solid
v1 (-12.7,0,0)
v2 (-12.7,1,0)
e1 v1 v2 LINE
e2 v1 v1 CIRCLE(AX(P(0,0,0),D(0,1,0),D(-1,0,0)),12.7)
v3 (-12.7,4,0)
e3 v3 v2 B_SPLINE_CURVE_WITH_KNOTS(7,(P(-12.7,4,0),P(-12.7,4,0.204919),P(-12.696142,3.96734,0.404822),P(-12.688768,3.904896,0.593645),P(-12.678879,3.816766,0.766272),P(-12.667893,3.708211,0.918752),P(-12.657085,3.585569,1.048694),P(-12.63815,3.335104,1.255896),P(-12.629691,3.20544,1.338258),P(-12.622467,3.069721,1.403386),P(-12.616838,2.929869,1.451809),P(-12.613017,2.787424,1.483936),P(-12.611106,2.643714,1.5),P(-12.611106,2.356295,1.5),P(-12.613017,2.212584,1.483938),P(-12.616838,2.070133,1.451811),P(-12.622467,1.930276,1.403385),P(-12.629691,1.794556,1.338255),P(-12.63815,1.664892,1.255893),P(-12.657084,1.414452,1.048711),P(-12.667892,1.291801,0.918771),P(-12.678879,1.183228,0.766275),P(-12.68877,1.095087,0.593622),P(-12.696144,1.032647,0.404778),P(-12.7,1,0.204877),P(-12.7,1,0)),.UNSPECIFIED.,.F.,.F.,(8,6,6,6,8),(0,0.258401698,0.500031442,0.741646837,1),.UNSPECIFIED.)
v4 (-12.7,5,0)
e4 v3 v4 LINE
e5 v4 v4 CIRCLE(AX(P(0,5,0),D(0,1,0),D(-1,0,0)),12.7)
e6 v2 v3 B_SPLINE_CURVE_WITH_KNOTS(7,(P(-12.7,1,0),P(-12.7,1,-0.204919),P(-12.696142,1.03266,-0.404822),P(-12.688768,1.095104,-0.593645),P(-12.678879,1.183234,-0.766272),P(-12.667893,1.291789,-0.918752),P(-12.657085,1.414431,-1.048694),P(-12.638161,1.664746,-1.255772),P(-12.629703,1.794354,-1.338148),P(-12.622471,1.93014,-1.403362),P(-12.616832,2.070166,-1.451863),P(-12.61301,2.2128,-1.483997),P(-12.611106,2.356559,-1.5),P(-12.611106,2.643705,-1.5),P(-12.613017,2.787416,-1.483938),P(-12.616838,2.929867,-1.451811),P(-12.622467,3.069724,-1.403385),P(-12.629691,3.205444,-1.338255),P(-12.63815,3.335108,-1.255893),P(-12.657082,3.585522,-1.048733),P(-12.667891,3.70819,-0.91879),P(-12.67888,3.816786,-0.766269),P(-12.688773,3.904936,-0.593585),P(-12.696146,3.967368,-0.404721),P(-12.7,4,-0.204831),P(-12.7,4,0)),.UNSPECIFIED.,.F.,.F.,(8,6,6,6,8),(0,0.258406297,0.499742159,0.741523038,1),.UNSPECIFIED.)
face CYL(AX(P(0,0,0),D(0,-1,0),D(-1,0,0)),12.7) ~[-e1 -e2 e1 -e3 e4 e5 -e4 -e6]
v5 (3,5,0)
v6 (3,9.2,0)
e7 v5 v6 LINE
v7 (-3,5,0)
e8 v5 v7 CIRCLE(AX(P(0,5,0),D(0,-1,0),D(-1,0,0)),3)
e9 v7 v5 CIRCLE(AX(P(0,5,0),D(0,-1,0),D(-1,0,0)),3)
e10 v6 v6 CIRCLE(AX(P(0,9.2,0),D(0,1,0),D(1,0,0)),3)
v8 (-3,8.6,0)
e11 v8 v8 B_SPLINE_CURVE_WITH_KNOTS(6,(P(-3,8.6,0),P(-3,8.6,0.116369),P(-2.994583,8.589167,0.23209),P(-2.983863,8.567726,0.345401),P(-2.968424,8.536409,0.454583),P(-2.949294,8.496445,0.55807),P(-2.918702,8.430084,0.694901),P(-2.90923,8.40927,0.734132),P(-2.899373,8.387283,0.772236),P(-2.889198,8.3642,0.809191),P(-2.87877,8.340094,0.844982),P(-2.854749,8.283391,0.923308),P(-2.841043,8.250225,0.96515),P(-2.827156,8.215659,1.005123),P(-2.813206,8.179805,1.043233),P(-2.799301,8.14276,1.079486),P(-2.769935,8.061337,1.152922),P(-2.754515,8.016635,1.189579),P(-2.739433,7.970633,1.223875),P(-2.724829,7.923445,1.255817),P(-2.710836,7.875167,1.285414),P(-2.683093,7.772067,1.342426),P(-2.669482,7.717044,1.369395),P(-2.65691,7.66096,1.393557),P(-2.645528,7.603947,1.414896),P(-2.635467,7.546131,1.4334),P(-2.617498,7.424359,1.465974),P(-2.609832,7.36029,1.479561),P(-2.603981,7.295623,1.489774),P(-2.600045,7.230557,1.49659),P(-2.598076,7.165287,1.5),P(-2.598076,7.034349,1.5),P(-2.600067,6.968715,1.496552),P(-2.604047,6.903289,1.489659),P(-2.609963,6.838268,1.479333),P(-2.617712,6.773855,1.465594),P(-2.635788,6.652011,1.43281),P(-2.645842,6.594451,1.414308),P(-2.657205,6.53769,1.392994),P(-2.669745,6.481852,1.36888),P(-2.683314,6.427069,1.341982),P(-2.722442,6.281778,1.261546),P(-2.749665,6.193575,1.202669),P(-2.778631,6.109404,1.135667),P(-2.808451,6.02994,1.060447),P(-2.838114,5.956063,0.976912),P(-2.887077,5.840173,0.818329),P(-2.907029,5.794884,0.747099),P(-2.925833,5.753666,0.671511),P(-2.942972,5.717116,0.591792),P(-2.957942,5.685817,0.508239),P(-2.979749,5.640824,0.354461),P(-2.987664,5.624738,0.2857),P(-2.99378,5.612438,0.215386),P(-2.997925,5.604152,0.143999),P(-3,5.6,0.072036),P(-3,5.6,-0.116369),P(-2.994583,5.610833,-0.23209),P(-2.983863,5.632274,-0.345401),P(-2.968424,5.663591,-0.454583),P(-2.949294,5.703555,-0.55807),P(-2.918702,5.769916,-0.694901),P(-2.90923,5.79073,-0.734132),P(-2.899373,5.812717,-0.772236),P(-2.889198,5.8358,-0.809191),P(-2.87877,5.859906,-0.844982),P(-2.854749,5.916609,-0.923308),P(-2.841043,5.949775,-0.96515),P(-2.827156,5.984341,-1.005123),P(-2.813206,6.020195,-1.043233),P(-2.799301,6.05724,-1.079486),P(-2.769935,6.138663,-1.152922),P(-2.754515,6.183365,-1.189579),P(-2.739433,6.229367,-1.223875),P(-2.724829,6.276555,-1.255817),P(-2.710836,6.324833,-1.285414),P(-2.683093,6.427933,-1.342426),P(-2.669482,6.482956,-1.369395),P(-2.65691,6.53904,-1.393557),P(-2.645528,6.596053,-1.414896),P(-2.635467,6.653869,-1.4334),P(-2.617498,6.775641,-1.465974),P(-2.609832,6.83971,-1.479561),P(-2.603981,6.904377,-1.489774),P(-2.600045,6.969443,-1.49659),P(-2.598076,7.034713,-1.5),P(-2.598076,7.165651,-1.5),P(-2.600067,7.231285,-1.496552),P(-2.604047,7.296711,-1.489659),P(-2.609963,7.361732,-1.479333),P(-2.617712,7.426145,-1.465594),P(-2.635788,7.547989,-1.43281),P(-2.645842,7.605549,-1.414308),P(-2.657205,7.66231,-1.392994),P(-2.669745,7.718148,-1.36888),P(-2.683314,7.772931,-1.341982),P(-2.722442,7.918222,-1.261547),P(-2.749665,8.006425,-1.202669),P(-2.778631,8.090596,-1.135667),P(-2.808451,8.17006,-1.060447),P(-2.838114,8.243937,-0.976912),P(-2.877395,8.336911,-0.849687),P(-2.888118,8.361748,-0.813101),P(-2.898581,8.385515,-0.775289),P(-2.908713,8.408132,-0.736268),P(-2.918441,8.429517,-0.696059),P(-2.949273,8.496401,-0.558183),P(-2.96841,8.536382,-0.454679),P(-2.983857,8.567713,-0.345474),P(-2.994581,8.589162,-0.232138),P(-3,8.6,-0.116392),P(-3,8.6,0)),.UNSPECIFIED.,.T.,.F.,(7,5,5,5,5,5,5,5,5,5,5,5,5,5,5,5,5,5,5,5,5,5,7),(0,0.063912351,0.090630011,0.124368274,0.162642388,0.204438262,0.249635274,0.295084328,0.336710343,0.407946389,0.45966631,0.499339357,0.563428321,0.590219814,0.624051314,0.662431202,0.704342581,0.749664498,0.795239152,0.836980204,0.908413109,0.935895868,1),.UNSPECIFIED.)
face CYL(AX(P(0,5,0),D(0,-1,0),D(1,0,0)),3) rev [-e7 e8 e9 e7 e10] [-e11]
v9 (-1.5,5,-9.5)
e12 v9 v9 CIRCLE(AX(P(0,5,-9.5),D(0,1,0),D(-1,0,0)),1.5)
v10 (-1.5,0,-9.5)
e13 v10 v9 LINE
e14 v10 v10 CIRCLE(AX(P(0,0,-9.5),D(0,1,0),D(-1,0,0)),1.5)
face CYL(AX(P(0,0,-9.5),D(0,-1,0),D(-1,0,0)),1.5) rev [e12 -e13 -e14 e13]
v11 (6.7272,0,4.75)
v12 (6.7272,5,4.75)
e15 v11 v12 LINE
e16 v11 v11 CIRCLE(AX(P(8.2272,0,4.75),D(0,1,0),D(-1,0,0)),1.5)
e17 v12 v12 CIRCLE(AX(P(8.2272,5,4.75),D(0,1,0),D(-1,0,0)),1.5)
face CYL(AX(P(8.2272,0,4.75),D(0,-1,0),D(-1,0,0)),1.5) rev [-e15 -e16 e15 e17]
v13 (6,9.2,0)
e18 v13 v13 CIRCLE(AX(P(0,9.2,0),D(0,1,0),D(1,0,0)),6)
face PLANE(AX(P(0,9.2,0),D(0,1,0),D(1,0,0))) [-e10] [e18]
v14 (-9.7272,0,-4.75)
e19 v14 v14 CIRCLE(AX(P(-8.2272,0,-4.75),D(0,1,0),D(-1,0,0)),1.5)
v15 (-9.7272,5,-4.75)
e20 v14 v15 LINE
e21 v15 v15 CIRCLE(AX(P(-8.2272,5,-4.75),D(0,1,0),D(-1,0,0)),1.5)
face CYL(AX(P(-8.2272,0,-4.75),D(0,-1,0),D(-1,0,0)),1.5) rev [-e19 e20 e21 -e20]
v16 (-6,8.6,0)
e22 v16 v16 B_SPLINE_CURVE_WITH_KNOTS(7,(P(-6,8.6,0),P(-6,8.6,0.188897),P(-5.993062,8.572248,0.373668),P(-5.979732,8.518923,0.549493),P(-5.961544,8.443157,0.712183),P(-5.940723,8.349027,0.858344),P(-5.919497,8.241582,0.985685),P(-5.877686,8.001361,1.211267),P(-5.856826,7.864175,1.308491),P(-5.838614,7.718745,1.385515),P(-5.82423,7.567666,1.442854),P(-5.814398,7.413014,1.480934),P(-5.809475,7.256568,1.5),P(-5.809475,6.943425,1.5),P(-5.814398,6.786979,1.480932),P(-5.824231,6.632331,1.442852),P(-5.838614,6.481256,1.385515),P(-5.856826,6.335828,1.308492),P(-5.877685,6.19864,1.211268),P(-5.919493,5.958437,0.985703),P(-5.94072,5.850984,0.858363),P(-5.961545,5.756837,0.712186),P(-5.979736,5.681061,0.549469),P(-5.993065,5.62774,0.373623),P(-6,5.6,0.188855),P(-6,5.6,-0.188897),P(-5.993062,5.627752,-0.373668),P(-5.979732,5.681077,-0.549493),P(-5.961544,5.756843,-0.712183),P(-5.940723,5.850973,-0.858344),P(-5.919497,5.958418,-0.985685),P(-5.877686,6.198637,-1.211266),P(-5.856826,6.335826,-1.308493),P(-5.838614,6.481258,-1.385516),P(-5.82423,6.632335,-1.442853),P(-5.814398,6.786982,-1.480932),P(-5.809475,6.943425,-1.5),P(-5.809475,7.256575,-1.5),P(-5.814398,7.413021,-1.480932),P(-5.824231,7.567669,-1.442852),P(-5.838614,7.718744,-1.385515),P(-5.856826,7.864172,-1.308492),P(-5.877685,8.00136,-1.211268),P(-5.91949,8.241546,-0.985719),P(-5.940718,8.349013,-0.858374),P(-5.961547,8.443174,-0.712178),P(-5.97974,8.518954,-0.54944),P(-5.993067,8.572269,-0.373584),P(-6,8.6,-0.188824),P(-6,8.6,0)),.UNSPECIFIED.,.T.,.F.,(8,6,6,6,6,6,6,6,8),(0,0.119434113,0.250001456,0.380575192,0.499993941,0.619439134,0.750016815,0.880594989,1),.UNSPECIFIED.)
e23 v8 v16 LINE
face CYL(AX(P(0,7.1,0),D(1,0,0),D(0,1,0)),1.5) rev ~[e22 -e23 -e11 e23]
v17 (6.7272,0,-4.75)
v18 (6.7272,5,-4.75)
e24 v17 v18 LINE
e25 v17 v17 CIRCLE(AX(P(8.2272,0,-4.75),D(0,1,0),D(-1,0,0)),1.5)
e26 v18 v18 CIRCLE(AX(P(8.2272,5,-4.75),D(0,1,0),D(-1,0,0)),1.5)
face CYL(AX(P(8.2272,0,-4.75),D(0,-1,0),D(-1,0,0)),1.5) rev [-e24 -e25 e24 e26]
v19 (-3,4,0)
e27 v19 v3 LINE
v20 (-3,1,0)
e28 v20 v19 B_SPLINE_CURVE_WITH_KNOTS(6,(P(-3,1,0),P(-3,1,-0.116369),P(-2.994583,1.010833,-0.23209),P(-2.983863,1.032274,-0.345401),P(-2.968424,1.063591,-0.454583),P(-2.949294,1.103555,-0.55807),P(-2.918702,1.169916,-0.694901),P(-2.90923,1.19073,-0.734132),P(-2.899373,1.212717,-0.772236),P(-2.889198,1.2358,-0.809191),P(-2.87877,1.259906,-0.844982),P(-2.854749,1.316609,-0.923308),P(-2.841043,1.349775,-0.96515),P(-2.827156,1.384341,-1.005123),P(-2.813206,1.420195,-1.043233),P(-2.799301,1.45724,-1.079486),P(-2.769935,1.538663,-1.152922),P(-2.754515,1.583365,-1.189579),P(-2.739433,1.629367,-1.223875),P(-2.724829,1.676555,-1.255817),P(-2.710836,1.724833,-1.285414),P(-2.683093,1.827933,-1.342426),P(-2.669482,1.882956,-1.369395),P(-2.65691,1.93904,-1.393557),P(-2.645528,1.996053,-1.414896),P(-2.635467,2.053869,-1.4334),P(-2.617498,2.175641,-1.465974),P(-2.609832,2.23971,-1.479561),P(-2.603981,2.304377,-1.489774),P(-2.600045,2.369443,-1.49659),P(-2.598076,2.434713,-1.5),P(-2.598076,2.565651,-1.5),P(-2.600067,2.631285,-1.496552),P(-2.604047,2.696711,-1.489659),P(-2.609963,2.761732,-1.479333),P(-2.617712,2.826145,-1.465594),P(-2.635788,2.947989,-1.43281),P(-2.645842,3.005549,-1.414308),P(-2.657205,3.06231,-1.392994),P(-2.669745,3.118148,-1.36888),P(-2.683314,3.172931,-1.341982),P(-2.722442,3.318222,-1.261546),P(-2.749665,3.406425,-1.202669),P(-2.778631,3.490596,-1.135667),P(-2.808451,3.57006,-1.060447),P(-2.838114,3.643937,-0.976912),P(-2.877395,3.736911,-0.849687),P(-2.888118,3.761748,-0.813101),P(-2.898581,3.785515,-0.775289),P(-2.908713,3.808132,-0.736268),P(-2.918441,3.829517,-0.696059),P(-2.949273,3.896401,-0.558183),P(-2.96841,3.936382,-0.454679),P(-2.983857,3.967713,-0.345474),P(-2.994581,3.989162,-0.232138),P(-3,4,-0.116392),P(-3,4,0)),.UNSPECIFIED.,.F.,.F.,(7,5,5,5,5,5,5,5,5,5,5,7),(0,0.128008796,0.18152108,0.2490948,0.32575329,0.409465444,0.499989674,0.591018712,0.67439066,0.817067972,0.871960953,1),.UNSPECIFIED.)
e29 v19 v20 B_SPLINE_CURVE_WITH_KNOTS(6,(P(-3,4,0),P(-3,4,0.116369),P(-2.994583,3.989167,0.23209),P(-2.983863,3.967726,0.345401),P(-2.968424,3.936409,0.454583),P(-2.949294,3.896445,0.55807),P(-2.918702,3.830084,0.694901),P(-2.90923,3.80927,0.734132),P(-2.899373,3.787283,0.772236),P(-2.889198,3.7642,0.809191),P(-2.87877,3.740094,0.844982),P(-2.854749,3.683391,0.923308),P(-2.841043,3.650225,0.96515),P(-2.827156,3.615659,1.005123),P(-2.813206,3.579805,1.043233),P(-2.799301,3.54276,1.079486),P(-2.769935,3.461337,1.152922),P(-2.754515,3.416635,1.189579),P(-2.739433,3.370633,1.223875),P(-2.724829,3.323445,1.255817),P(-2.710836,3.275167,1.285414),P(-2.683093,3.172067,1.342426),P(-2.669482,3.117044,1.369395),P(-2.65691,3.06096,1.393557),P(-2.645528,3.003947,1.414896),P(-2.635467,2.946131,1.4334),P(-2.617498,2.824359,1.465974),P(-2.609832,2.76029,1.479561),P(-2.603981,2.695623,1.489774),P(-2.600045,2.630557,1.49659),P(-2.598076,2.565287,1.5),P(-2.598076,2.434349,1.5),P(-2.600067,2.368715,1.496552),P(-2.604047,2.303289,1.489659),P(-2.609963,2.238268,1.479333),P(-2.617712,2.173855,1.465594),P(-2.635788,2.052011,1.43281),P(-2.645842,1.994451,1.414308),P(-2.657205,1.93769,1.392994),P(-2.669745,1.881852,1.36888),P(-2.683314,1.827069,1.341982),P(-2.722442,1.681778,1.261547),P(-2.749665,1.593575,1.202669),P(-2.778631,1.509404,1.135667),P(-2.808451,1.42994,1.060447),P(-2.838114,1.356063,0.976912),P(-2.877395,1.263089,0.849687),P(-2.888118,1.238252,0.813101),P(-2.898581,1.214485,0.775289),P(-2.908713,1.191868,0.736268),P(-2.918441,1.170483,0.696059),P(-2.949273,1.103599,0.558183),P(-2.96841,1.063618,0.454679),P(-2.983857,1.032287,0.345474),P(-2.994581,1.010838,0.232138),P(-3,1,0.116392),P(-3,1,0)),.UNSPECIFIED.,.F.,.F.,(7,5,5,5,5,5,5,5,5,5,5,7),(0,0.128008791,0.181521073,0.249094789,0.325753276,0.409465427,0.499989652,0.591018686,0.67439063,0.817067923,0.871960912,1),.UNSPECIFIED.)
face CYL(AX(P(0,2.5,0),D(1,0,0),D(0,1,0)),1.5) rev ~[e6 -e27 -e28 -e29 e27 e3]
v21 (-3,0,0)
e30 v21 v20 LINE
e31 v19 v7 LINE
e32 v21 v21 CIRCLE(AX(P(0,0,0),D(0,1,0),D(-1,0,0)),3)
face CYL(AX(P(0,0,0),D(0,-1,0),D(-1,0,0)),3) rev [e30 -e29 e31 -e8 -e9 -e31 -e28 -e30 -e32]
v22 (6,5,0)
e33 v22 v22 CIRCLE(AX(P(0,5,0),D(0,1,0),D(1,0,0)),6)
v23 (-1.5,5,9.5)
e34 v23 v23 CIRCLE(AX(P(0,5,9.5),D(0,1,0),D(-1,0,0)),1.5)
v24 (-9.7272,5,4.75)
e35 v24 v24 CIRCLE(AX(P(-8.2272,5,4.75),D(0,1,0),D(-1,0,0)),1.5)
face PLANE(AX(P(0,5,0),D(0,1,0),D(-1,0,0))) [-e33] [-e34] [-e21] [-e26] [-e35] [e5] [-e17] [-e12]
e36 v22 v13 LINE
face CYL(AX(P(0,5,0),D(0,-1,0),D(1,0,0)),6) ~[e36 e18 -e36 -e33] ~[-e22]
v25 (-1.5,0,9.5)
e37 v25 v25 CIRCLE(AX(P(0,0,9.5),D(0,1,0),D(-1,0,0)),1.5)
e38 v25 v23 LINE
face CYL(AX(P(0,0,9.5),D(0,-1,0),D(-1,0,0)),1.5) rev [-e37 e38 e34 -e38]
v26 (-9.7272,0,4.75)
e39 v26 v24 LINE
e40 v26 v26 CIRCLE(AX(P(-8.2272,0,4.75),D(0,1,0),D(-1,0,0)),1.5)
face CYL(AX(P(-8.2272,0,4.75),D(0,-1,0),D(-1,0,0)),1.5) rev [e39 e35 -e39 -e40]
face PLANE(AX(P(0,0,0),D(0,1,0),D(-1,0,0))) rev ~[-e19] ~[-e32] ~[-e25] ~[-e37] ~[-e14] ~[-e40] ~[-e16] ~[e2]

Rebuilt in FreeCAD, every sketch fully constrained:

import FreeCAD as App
import Part
import Sketcher

V = App.Vector
Q = App.Units.Quantity

doc = App.newDocument("Part")
body = doc.addObject("PartDesign::Body", "Body")

# Sketch on XZ plane
sketch1 = body.newObject("Sketcher::SketchObject", "Sketch")
sketch1.AttachmentSupport = (doc.getObject("XZ_Plane"), [""])
sketch1.MapMode = "FlatFace"
sketch1.addGeometry([
    Part.Circle(V(0, 0, 0), V(0, 0, 1), 12.7),  # 0
    Part.Circle(V(0, -9.5, 0), V(0, 0, 1), 1.5),  # 1
    Part.Circle(V(8.2, -4.8, 0), V(0, 0, 1), 1.5),  # 2
    Part.Circle(V(-8.2, -4.8, 0), V(0, 0, 1), 1.5),  # 3
    Part.Circle(V(8.2, 4.8, 0), V(0, 0, 1), 1.5),  # 4
    Part.Circle(V(0, 9.5, 0), V(0, 0, 1), 1.5),  # 5
    Part.Circle(V(-8.2, 4.8, 0), V(0, 0, 1), 1.5),  # 6
], False)
sketch1.addConstraint([
    Sketcher.Constraint("Coincident", 0, 3, -1, 1),
    Sketcher.Constraint("Equal", 1, 2),
    Sketcher.Constraint("Equal", 2, 3),
    Sketcher.Constraint("Equal", 3, 4),
    Sketcher.Constraint("Equal", 4, 5),
    Sketcher.Constraint("Equal", 5, 6),
    Sketcher.Constraint("Symmetric", 3, 3, 4, 3, -1, 1),
    Sketcher.Constraint("Symmetric", 1, 3, 5, 3, -1, 1),
    Sketcher.Constraint("Symmetric", 2, 3, 6, 3, -1, 1),
    Sketcher.Constraint("Symmetric", 2, 3, 3, 3, -2),
    Sketcher.Constraint("PointOnObject", 1, 3, -2),
    Sketcher.Constraint("Diameter", 1, Q("3 mm")),
    Sketcher.Constraint("Diameter", 0, Q("25.4 mm")),
    Sketcher.Constraint("DistanceY", 1, 3, -1, 1, Q("9.5 mm")),
    Sketcher.Constraint("DistanceY", 2, 3, 4, 3, Q("9.5 mm")),
    Sketcher.Constraint("DistanceX", -1, 1, 2, 3, Q("8.2272 mm")),
])
pad1 = body.newObject("PartDesign::Pad", "Pad")
pad1.Profile = sketch1
pad1.Length = 5
pad1.Reversed = True

# Sketch on XZ plane
sketch2 = body.newObject("Sketcher::SketchObject", "Sketch001")
sketch2.AttachmentSupport = (doc.getObject("XZ_Plane"), [""])
sketch2.MapMode = "FlatFace"
sketch2.addGeometry(Part.Circle(V(0, 0, 0), V(0, 0, 1), 3), False)
sketch2.addConstraint([
    Sketcher.Constraint("Coincident", 0, 3, -1, 1),
    Sketcher.Constraint("Diameter", 0, Q("6 mm")),
])
pocket1 = body.newObject("PartDesign::Pocket", "Pocket")
pocket1.Profile = sketch2
pocket1.Type = "ThroughAll"

# Sketch on XZ plane
sketch3 = body.newObject("Sketcher::SketchObject", "Sketch002")
sketch3.AttachmentSupport = (doc.getObject("XZ_Plane"), [""])
sketch3.MapMode = "FlatFace"
sketch3.AttachmentOffset = App.Placement(V(0, 0, -5), App.Rotation())
sketch3.addGeometry([
    Part.Circle(V(0, 0, 0), V(0, 0, 1), 6),
    Part.Circle(V(0, 0, 0), V(0, 0, 1), 3),
], False)
sketch3.addConstraint([
    Sketcher.Constraint("Coincident", 0, 3, -1, 1),
    Sketcher.Constraint("Coincident", 1, 3, -1, 1),
    Sketcher.Constraint("Diameter", 0, Q("12 mm")),
    Sketcher.Constraint("Diameter", 1, Q("6 mm")),
])
pad2 = body.newObject("PartDesign::Pad", "Pad001")
pad2.Profile = sketch3
pad2.Length = 4.2
pad2.Reversed = True

# Sketch on YZ plane
sketch4 = body.newObject("Sketcher::SketchObject", "Sketch003")
sketch4.AttachmentSupport = (doc.getObject("YZ_Plane"), [""])
sketch4.MapMode = "FlatFace"
sketch4.addGeometry(Part.Circle(V(2.5, 0, 0), V(0, 0, 1), 1.5), False)
sketch4.addConstraint([
    Sketcher.Constraint("PointOnObject", 0, 3, -1),
    Sketcher.Constraint("Diameter", 0, Q("3 mm")),
    Sketcher.Constraint("DistanceX", -1, 1, 0, 3, Q("2.5 mm")),
])
pocket2 = body.newObject("PartDesign::Pocket", "Pocket001")
pocket2.Profile = sketch4
pocket2.Type = "ThroughAll"

# Sketch on YZ plane
sketch5 = body.newObject("Sketcher::SketchObject", "Sketch004")
sketch5.AttachmentSupport = (doc.getObject("YZ_Plane"), [""])
sketch5.MapMode = "FlatFace"
sketch5.addGeometry(Part.Circle(V(7.1, 0, 0), V(0, 0, 1), 1.5), False)
sketch5.addConstraint([
    Sketcher.Constraint("PointOnObject", 0, 3, -1),
    Sketcher.Constraint("Diameter", 0, Q("3 mm")),
    Sketcher.Constraint("DistanceX", -1, 1, 0, 3, Q("7.1 mm")),
])
pocket3 = body.newObject("PartDesign::Pocket", "Pocket002")
pocket3.Profile = sketch5
pocket3.Type = "ThroughAll"

doc.recompute()
